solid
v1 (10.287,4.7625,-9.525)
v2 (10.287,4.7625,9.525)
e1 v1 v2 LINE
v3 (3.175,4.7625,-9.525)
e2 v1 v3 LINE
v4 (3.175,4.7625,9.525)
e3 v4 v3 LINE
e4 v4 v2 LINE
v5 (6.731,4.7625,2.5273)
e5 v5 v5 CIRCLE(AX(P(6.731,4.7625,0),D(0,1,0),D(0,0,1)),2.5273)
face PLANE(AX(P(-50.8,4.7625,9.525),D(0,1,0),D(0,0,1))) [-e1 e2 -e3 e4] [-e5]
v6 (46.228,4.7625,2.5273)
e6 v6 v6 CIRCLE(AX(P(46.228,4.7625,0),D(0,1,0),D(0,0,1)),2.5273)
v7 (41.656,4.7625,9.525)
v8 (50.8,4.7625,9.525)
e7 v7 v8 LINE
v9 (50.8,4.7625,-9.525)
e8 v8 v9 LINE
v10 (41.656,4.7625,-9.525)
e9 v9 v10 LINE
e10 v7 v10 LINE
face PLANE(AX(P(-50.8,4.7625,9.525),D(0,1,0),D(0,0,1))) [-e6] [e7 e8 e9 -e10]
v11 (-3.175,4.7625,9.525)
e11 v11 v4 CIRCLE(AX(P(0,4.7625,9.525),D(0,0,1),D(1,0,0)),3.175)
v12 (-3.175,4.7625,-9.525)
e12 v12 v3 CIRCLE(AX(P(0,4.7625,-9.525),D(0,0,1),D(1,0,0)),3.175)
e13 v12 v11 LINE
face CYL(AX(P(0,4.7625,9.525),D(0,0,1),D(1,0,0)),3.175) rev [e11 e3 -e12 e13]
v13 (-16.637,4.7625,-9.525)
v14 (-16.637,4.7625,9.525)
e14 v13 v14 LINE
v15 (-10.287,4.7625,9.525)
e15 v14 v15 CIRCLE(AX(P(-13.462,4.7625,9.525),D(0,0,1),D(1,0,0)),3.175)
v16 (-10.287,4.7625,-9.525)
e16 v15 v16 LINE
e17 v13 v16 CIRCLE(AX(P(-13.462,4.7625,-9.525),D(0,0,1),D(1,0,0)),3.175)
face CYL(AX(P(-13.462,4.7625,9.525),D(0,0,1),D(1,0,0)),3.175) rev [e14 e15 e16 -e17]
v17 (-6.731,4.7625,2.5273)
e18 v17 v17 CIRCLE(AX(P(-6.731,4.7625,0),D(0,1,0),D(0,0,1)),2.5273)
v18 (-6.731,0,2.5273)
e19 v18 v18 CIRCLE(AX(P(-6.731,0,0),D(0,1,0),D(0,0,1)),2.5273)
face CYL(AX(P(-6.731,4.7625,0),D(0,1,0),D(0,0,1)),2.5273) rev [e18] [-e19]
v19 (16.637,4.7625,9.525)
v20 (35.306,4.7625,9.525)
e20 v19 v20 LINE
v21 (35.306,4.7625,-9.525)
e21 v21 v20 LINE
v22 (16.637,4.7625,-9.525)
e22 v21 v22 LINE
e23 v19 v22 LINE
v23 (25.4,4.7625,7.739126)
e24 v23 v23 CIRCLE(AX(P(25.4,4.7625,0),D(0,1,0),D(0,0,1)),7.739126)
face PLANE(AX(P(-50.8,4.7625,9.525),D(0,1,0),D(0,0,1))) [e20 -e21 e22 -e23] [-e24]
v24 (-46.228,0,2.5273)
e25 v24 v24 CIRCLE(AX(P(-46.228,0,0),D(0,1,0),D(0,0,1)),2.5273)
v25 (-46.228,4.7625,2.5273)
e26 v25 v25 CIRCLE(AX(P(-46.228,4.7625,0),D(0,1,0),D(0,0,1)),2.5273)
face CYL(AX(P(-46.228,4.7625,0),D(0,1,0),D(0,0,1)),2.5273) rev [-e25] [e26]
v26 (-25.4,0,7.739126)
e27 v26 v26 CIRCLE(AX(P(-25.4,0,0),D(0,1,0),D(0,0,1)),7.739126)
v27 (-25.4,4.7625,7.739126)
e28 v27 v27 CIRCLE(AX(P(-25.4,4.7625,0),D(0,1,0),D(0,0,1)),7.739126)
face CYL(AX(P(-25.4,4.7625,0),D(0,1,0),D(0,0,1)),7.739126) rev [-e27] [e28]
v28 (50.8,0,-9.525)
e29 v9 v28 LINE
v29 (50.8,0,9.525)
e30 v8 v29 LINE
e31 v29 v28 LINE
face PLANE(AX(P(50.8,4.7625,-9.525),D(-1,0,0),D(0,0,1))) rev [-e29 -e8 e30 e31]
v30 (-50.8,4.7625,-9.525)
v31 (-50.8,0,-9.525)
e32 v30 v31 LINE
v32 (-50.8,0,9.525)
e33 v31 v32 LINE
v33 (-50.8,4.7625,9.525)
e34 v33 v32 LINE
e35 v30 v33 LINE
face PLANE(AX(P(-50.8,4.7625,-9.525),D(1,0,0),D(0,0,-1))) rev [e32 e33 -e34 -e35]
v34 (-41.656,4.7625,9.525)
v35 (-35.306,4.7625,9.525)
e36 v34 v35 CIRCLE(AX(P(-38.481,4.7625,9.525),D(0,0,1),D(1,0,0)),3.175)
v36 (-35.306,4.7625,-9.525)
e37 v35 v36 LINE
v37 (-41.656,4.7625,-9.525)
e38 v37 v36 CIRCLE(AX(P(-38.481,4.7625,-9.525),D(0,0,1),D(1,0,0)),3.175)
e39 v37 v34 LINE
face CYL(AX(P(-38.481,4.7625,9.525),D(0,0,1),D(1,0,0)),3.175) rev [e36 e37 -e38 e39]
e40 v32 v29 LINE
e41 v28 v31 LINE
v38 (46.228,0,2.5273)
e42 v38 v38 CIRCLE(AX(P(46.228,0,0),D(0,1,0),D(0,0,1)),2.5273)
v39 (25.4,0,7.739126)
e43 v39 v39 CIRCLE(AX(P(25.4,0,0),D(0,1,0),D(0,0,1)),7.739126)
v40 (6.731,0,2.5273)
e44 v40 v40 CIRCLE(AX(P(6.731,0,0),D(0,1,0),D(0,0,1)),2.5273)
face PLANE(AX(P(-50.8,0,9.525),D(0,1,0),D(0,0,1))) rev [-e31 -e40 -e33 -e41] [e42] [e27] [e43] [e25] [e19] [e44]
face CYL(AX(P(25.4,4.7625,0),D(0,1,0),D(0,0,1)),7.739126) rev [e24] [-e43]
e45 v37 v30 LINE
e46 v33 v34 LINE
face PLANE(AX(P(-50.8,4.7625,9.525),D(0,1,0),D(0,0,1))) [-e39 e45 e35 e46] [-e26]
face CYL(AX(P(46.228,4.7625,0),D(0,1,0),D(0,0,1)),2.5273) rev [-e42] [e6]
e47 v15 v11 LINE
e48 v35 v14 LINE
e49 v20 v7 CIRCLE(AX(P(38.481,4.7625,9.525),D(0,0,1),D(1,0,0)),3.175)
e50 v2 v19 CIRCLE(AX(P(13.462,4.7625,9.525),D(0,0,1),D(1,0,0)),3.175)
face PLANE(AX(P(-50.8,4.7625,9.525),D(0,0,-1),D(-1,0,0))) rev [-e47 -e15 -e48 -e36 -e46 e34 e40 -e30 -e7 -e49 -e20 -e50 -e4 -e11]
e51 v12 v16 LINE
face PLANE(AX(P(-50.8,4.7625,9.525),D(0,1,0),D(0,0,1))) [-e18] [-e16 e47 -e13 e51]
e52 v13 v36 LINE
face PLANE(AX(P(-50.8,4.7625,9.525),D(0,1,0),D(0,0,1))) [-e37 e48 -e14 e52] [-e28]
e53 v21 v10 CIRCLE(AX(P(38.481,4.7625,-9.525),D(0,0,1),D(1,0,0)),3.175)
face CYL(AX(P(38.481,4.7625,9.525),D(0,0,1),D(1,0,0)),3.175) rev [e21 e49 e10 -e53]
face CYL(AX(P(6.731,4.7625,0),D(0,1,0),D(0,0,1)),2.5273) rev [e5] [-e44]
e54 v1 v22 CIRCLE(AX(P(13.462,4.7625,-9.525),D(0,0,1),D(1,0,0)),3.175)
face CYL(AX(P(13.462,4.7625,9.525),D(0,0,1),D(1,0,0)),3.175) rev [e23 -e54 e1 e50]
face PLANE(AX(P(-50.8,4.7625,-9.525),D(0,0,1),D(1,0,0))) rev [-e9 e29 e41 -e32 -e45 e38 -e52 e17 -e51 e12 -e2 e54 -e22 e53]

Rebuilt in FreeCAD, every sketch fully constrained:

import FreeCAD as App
import Part
import Sketcher
Q = App.Units.Quantity

doc = App.newDocument("Part")
body = doc.addObject("PartDesign::Body", "Body")

sketch1 = doc.addObject("Sketcher::SketchObject", "Sketch")
body.addObject(sketch1)
sketch1.AttachmentSupport = (doc.XZ_Plane, [""])
sketch1.MapMode = "FlatFace"
sketch1.addGeometry([
    Part.LineSegment(App.Vector(-51, -10, 0), App.Vector(-51, 10, 0)),
    Part.LineSegment(App.Vector(-51, 10, 0), App.Vector(51, 10, 0)),
    Part.LineSegment(App.Vector(51, 10, 0), App.Vector(51, -10, 0)),
    Part.LineSegment(App.Vector(51, -10, 0), App.Vector(-51, -10, 0)),
], False)
sketch1.addConstraint([
    Sketcher.Constraint("Coincident", 0, 2, 1, 1),
    Sketcher.Constraint("Coincident", 1, 2, 2, 1),
    Sketcher.Constraint("Coincident", 2, 2, 3, 1),
    Sketcher.Constraint("Coincident", 3, 2, 0, 1),
    Sketcher.Constraint("Vertical", 0),
    Sketcher.Constraint("Horizontal", 1),
    Sketcher.Constraint("Vertical", 2),
    Sketcher.Constraint("Horizontal", 3),
    Sketcher.Constraint("Symmetric", 0, 2, 2, 2, -1, 1),
    Sketcher.Constraint("DistanceX", 1, 1, 1, 2, Q("4 in")),
    Sketcher.Constraint("DistanceY", 0, 1, 0, 2, Q("0.75 in")),
])
pad1 = doc.addObject("PartDesign::Pad", "Pad")
body.addObject(pad1)
pad1.Profile = sketch1
pad1.Length = Q("0.1875 in")
pad1.Reversed = True

sketch2 = doc.addObject("Sketcher::SketchObject", "Sketch001")
body.addObject(sketch2)
sketch2.AttachmentSupport = (doc.XZ_Plane, [""])
sketch2.MapMode = "FlatFace"
sketch2.AttachmentOffset = App.Placement(App.Vector(0, 0, -0.1875 * 25.4), App.Rotation())
sketch2.addGeometry([
    Part.Circle(App.Vector(-25, 0, 0), App.Vector(0, 0, 1), 8),
    Part.Circle(App.Vector(25, 0, 0), App.Vector(0, 0, 1), 8),
], False)
sketch2.addConstraint([
    Sketcher.Constraint("Equal", 0, 1),
    Sketcher.Constraint("Symmetric", 0, 3, 1, 3, -1, 1),
    Sketcher.Constraint("PointOnObject", 0, 3, -1),
    Sketcher.Constraint("DistanceX", 0, 3, -1, 1, Q("1 in")),
    Sketcher.Constraint("Diameter", 0, Q("15.478252 mm")),
])
doc.recompute()
hole = doc.addObject("PartDesign::Hole", "Hole")
body.addObject(hole)
hole.Profile = sketch2
hole.ThreadType = "None"
hole.Diameter = 15.478252
hole.DepthType = "ThroughAll"
hole.Reversed = True

sketch3 = doc.addObject("Sketcher::SketchObject", "Sketch002")
body.addObject(sketch3)
sketch3.AttachmentSupport = (doc.XY_Plane, [""])
sketch3.MapMode = "FlatFace"
sketch3.AttachmentOffset = App.Placement(App.Vector(0, 0, 0.375 * 25.4), App.Rotation())
sketch3.addGeometry([
    Part.Circle(App.Vector(0, 4.8, 0), App.Vector(0, 0, 1), 3.2),
    Part.Circle(App.Vector(-13.5, 4.8, 0), App.Vector(0, 0, 1), 3.2),
    Part.Circle(App.Vector(13.5, 4.8, 0), App.Vector(0, 0, 1), 3.2),
    Part.Circle(App.Vector(-38.5, 4.8, 0), App.Vector(0, 0, 1), 3.2),
    Part.Circle(App.Vector(38.5, 4.8, 0), App.Vector(0, 0, 1), 3.2),
], False)
sketch3.addConstraint([
    Sketcher.Constraint("Equal", 0, 1),
    Sketcher.Constraint("Equal", 1, 2),
    Sketcher.Constraint("Equal", 2, 3),
    Sketcher.Constraint("Equal", 3, 4),
    Sketcher.Constraint("Symmetric", 1, 3, 2, 3, -2),
    Sketcher.Constraint("Symmetric", 3, 3, 4, 3, -2),
    Sketcher.Constraint("PointOnObject", 0, 3, -2),
    Sketcher.Constraint("Horizontal", 0, 3, 1, 3),
    Sketcher.Constraint("Horizontal", 2, 3, 3, 3),
    Sketcher.Constraint("Diameter", 0, Q("0.25 in")),
    Sketcher.Constraint("DistanceX", 1, 3, -1, 1, Q("0.53 in")),
    Sketcher.Constraint("DistanceX", 3, 3, 4, 3, Q("3.03 in")),
    Sketcher.Constraint("DistanceY", -1, 1, 0, 3, Q("0.1875 in")),
])
doc.recompute()
hole2 = doc.addObject("PartDesign::Hole", "Hole001")
body.addObject(hole2)
hole2.Profile = sketch3
hole2.ThreadType = "None"
hole2.Diameter = Q("0.25 in")
hole2.DepthType = "ThroughAll"

sketch4 = doc.addObject("Sketcher::SketchObject", "Sketch003")
body.addObject(sketch4)
sketch4.AttachmentSupport = (doc.XZ_Plane, [""])
sketch4.MapMode = "FlatFace"
sketch4.AttachmentOffset = App.Placement(App.Vector(0, 0, -0.1875 * 25.4), App.Rotation())
sketch4.addGeometry([
    Part.Circle(App.Vector(46.2, 0, 0), App.Vector(0, 0, 1), 2.5),
    Part.Circle(App.Vector(6.7, 0, 0), App.Vector(0, 0, 1), 2.5),
    Part.Circle(App.Vector(-6.7, 0, 0), App.Vector(0, 0, 1), 2.5),
    Part.Circle(App.Vector(-46.2, 0, 0), App.Vector(0, 0, 1), 2.5),
], False)
sketch4.addConstraint([
    Sketcher.Constraint("Equal", 0, 1),
    Sketcher.Constraint("Equal", 1, 2),
    Sketcher.Constraint("Equal", 2, 3),
    Sketcher.Constraint("Symmetric", 1, 3, 2, 3, -1, 1),
    Sketcher.Constraint("Symmetric", 0, 3, 3, 3, -1, 1),
    Sketcher.Constraint("PointOnObject", 0, 3, -1),
    Sketcher.Constraint("PointOnObject", 1, 3, -1),
    Sketcher.Constraint("Diameter", 0, Q("0.199 in")),
    Sketcher.Constraint("DistanceX", -1, 1, 0, 3, Q("1.82 in")),
    Sketcher.Constraint("DistanceX", 2, 3, 1, 3, Q("0.53 in")),
])
doc.recompute()
hole3 = doc.addObject("PartDesign::Hole", "Hole002")
body.addObject(hole3)
hole3.Profile = sketch4
hole3.ThreadType = "None"
hole3.Diameter = Q("0.199 in")
hole3.DepthType = "ThroughAll"
hole3.Reversed = True

doc.recompute()
